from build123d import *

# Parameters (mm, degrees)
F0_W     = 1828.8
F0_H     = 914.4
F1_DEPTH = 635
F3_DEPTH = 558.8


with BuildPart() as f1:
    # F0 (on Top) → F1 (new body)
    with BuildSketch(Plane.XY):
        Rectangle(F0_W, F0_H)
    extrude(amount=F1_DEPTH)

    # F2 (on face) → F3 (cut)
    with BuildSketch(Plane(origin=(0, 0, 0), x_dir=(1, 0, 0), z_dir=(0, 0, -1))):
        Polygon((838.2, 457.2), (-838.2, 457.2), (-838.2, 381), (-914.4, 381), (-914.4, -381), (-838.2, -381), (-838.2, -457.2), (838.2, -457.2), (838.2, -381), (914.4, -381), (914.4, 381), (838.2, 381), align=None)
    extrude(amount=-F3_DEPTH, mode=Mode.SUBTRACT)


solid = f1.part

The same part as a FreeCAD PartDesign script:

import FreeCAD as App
import Part
import Sketcher

V = App.Vector
Q = App.Units.Quantity


def add_polygon(sketch, points):
    """Adds a closed chain of lines whose ends are joined by coincident constraints."""
    first, n = sketch.GeometryCount, len(points)
    for a, b in zip(points, points[1:] + points[:1]):
        sketch.addGeometry(Part.LineSegment(App.Vector(*a, 0), App.Vector(*b, 0)), False)
    for i in range(n):
        sketch.addConstraint(Sketcher.Constraint("Coincident", first + i, 2, first + (i + 1) % n, 1))

doc = App.newDocument("Part")
body = doc.addObject("PartDesign::Body", "Body")

# Sketch on XY plane
sketch1 = doc.addObject("Sketcher::SketchObject", "Sketch")
body.addObject(sketch1)
sketch1.AttachmentSupport = (doc.XY_Plane, [""])
sketch1.MapMode = "FlatFace"
add_polygon(sketch1, [(-914, 457), (-914, -457), (914, -457), (914, 457)])  # lines 0-3
sketch1.addConstraint(Sketcher.Constraint("Vertical", 0))
sketch1.addConstraint(Sketcher.Constraint("Horizontal", 1))
sketch1.addConstraint(Sketcher.Constraint("Vertical", 2))
sketch1.addConstraint(Sketcher.Constraint("Horizontal", 3))
sketch1.addConstraint(Sketcher.Constraint("Symmetric", 0, 2, 2, 2, -1, 1))
sketch1.addConstraint(Sketcher.Constraint("DistanceX", 1, 1, 1, 2, Q("72 in")))
sketch1.addConstraint(Sketcher.Constraint("DistanceY", 0, 2, 0, 1, Q("36 in")))
pad1 = doc.addObject("PartDesign::Pad", "Pad")
body.addObject(pad1)
pad1.Profile = sketch1
pad1.Length = Q("25 in")

# Sketch on XY plane
sketch2 = doc.addObject("Sketcher::SketchObject", "Sketch001")
body.addObject(sketch2)
sketch2.AttachmentSupport = (doc.XY_Plane, [""])
sketch2.MapMode = "FlatFace"
add_polygon(sketch2, [(838, -457), (-838, -457), (-838, -381), (-914, -381), (-914, 381), (-838, 381), (-838, 457), (838, 457), (838, 381), (914, 381), (914, -381), (838, -381)])  # lines 0-11
sketch2.addConstraint(Sketcher.Constraint("Horizontal", 0))
sketch2.addConstraint(Sketcher.Constraint("Vertical", 1))
sketch2.addConstraint(Sketcher.Constraint("Horizontal", 2))
sketch2.addConstraint(Sketcher.Constraint("Vertical", 3))
sketch2.addConstraint(Sketcher.Constraint("Horizontal", 4))
sketch2.addConstraint(Sketcher.Constraint("Vertical", 5))
sketch2.addConstraint(Sketcher.Constraint("Horizontal", 6))
sketch2.addConstraint(Sketcher.Constraint("Vertical", 7))
sketch2.addConstraint(Sketcher.Constraint("Horizontal", 8))
sketch2.addConstraint(Sketcher.Constraint("Vertical", 9))
sketch2.addConstraint(Sketcher.Constraint("Horizontal", 10))
sketch2.addConstraint(Sketcher.Constraint("Vertical", 11))
sketch2.addConstraint(Sketcher.Constraint("Symmetric", 0, 2, 6, 2, -1, 1))
sketch2.addConstraint(Sketcher.Constraint("Symmetric", 2, 2, 8, 2, -1, 1))
sketch2.addConstraint(Sketcher.Constraint("Symmetric", 4, 2, 10, 2, -1, 1))
sketch2.addConstraint(Sketcher.Constraint("Symmetric", 4, 2, 7, 2, -2))
sketch2.addConstraint(Sketcher.Constraint("Equal", 10, 1))
sketch2.addConstraint(Sketcher.Constraint("DistanceX", 0, 2, 0, 1, Q("66 in")))
sketch2.addConstraint(Sketcher.Constraint("DistanceX", 2, 2, 2, 1, Q("3 in")))
sketch2.addConstraint(Sketcher.Constraint("DistanceY", 3, 1, 3, 2, Q("30 in")))
pocket1 = doc.addObject("PartDesign::Pocket", "Pocket")
body.addObject(pocket1)
pocket1.Profile = sketch2
pocket1.Length = Q("22 in")
pocket1.Reversed = True

doc.recompute()
